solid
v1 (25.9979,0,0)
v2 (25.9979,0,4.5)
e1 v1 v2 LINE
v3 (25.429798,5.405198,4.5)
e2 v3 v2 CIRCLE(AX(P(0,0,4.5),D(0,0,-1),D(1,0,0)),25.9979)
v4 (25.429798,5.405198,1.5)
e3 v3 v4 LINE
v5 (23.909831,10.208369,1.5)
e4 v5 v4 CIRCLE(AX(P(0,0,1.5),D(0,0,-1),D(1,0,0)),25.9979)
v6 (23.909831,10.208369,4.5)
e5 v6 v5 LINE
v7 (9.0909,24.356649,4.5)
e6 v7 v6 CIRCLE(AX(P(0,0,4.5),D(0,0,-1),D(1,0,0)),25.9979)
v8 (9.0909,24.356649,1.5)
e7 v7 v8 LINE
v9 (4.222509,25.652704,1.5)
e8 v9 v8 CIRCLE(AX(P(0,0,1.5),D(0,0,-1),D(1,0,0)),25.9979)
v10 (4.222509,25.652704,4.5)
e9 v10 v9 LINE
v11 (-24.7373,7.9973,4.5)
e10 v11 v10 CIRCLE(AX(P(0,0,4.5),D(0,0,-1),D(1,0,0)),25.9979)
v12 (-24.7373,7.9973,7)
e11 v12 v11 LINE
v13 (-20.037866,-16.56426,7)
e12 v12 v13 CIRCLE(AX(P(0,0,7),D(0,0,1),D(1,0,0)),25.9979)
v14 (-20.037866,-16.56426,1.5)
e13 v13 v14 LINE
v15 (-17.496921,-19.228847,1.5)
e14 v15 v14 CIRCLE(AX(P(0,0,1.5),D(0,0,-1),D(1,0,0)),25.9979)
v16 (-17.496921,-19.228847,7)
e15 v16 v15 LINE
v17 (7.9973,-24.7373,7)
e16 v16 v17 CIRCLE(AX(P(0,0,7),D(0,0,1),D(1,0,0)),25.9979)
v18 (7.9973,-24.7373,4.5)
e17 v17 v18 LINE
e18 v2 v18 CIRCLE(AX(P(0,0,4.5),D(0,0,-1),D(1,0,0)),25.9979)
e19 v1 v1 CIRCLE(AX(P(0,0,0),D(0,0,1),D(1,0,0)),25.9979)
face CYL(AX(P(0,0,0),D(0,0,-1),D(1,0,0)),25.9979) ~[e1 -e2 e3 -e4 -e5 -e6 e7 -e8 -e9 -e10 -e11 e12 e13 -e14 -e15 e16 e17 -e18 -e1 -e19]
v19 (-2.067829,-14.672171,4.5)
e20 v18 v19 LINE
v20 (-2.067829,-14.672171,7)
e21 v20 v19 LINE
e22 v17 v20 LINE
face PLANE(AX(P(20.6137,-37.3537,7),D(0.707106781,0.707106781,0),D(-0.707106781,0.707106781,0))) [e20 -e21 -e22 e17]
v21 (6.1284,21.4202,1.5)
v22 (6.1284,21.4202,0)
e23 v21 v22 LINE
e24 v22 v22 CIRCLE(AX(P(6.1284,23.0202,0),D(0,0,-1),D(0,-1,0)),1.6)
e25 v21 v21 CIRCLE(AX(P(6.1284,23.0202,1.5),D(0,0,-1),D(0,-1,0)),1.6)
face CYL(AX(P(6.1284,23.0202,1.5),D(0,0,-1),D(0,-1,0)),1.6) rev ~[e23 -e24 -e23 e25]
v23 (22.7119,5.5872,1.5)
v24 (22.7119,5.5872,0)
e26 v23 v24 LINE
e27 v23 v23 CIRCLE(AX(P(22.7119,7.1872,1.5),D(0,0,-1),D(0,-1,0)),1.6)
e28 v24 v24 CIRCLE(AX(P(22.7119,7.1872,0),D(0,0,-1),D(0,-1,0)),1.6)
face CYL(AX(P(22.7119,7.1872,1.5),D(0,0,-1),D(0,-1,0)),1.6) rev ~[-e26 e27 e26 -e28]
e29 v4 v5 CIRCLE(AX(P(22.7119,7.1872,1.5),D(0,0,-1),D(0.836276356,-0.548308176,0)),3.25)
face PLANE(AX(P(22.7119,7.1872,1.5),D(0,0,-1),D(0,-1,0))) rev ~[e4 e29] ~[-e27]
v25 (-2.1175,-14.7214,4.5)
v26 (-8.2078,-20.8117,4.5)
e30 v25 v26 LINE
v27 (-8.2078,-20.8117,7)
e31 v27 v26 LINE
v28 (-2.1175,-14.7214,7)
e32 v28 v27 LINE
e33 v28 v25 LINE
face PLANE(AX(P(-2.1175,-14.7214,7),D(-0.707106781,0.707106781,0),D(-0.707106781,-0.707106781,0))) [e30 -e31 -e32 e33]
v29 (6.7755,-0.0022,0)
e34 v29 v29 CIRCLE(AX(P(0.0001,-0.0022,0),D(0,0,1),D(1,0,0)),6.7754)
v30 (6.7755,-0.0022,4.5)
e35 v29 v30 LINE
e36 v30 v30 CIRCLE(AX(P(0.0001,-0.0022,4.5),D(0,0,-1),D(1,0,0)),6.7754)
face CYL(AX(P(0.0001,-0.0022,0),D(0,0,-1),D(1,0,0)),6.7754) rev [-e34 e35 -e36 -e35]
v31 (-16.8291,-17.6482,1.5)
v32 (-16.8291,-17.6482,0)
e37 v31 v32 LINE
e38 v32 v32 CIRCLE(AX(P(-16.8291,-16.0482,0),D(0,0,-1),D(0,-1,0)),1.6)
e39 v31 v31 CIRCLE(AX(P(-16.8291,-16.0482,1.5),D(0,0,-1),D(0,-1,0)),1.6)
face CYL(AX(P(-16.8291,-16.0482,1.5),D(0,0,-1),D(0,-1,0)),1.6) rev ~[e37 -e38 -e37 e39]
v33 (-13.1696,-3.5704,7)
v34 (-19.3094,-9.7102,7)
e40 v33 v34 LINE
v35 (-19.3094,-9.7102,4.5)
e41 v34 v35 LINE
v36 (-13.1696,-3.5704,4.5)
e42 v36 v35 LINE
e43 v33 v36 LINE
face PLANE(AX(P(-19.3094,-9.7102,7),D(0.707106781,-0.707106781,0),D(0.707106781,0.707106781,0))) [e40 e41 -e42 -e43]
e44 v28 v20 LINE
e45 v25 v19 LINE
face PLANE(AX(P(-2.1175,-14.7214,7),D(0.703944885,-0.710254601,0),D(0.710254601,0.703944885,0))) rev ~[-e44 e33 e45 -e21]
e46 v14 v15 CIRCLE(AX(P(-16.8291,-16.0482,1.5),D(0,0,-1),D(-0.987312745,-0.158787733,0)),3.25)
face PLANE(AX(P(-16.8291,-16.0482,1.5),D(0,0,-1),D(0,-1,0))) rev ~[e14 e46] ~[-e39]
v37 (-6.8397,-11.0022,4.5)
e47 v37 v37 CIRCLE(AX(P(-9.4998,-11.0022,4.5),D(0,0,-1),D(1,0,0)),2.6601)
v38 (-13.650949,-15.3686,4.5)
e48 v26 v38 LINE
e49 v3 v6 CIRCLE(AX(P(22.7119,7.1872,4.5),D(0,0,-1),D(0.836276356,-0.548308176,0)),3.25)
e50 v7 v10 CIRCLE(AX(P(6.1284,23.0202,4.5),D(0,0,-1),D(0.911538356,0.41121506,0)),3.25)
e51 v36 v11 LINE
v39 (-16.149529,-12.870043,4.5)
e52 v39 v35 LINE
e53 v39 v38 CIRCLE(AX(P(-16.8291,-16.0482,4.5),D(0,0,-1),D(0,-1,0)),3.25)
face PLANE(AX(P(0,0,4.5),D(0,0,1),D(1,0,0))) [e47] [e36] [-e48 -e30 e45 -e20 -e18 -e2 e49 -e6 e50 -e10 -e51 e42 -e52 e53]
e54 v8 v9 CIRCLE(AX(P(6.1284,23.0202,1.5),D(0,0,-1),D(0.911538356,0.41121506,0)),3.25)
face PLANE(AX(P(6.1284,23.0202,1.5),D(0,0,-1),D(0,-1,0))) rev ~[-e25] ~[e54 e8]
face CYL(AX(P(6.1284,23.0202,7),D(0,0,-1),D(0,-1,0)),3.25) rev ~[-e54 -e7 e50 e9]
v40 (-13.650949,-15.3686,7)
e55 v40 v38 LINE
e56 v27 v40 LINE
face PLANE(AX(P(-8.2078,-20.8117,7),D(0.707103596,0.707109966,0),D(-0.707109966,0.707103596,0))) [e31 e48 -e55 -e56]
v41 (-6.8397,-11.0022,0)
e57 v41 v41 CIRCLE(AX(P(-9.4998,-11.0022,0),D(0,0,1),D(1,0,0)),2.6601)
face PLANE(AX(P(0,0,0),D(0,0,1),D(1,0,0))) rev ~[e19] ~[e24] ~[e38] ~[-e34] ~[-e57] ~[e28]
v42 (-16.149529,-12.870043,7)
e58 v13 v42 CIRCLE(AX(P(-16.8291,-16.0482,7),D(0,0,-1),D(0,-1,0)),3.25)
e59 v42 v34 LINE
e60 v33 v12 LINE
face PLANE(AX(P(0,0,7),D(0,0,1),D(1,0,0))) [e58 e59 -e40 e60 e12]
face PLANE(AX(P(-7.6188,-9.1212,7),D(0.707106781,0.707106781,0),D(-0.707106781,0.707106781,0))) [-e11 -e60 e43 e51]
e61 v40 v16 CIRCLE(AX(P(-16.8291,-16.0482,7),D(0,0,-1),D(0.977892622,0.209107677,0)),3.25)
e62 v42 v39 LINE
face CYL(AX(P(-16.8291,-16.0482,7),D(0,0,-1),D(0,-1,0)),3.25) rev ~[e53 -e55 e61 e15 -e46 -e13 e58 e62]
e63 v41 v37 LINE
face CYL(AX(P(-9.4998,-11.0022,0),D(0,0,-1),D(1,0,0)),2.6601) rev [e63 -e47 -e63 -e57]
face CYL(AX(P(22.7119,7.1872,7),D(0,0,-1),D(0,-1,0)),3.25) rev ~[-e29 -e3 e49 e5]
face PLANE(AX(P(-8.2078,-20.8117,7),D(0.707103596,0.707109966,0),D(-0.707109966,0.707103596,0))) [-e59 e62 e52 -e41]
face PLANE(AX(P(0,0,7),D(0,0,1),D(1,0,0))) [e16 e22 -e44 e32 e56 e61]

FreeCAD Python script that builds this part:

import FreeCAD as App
import Part
import Sketcher
from FreeCAD import Vector
Q = App.Units.Quantity


def add_polygon(sketch, points):
    """Adds a closed chain of lines whose ends are joined by coincident constraints."""
    first, n = sketch.GeometryCount, len(points)
    for a, b in zip(points, points[1:] + points[:1]):
        sketch.addGeometry(Part.LineSegment(App.Vector(*a, 0), App.Vector(*b, 0)), False)
    for i in range(n):
        sketch.addConstraint(Sketcher.Constraint("Coincident", first + i, 2, first + (i + 1) % n, 1))

doc = App.newDocument("Part")
body = doc.addObject("PartDesign::Body", "Body")

sketch1 = body.newObject("Sketcher::SketchObject", "Sketch")
sketch1.AttachmentSupport = (doc.getObject("XY_Plane"), [""])
sketch1.MapMode = "FlatFace"
sketch1.addGeometry([
    Part.Circle(Vector(0, 0, 0), Vector(0, 0, 1), 25.9979),
    Part.Circle(Vector(-9.4998, -11.0022, 0), Vector(0, 0, 1), 2.6601),
    Part.Circle(Vector(0.0001, -0.0022, 0), Vector(0, 0, 1), 6.7754),
], False)
sketch1.addConstraint([
    Sketcher.Constraint("Coincident", 0, 3, -1, 1),
    Sketcher.Constraint("PointOnObject", 2, 3, -2),
    Sketcher.Constraint("DistanceY", 1, 3, 2, 3, 11.0),
    Sketcher.Constraint("Diameter", 0, 51.9958),
    Sketcher.Constraint("Diameter", 1, 5.3202),
    Sketcher.Constraint("Diameter", 2, 13.5508),
    Sketcher.Constraint("DistanceX", 1, 3, 2, 3, 9.5),
    Sketcher.Constraint("DistanceY", 1, 3, -1, 1, 11.0022),
])
pad1 = body.newObject("PartDesign::Pad", "Pad")
pad1.Profile = sketch1
pad1.Length = 7

sketch2 = body.newObject("Sketcher::SketchObject", "Sketch001")
sketch2.AttachmentSupport = (doc.getObject("XY_Plane"), [""])
sketch2.MapMode = "FlatFace"
sketch2.AttachmentOffset = App.Placement(Vector(0, 0, 7), App.Rotation())
add_polygon(sketch2, [(48.898, -9.0695), (-10.4551, 50.2837), (-38.7394, 21.9994), (20.6137, -37.3537)])
sketch2.addConstraint([
    Sketcher.Constraint("Perpendicular", 0, 1),
    Sketcher.Constraint("Perpendicular", 1, 2),
    Sketcher.Constraint("Perpendicular", 2, 3),
    Sketcher.Constraint("Angle", 0, Q("135 deg")),
    Sketcher.Constraint("Distance", 1, 40.0),
    Sketcher.Constraint("Distance", 0, 83.938),
    Sketcher.Constraint("DistanceX", 0, 2, -1, 1, 10.455),
    Sketcher.Constraint("DistanceY", -1, 1, 0, 2, 50.2837),
])
pocket1 = body.newObject("PartDesign::Pocket", "Pocket")
pocket1.Profile = sketch2
pocket1.Length = 2.5

sketch3 = body.newObject("Sketcher::SketchObject", "Sketch002")
sketch3.AttachmentSupport = (doc.getObject("XY_Plane"), [""])
sketch3.MapMode = "FlatFace"
sketch3.AttachmentOffset = App.Placement(Vector(0, 0, 7), App.Rotation())
add_polygon(sketch3, [(-8.2078, -20.8117), (-2.1175, -14.7214), (-0.0463, -12.6686), (-11.0984, -1.5176), (-13.1696, -3.5704), (-19.3094, -9.7102)])
sketch3.addConstraint([
    Sketcher.Constraint("Distance", 2, 15.7),
    Sketcher.Constraint("Distance", 5, 15.7),
    Sketcher.Constraint("Distance", 0, 8.613),
    Sketcher.Constraint("Distance", 4, 8.683),
    Sketcher.Constraint("DistanceX", 2, 2, 1, 2, 11.052),
    Sketcher.Constraint("DistanceX", 2, 2, 0, 2, 8.981),
    Sketcher.Constraint("DistanceX", 3, 2, 0, 2, 11.052),
    Sketcher.Constraint("DistanceY", 0, 2, 3, 2, 11.151),
    Sketcher.Constraint("DistanceX", 4, 2, 2, 2, 8.211),
    Sketcher.Constraint("DistanceY", 5, 2, 1, 2, 8.143),
    Sketcher.Constraint("DistanceX", 0, 2, -1, 1, 2.1175),
    Sketcher.Constraint("DistanceY", 0, 2, -1, 1, 14.7214),
])
pocket2 = body.newObject("PartDesign::Pocket", "Pocket001")
pocket2.Profile = sketch3
pocket2.Length = 2.5

sketch4 = body.newObject("Sketcher::SketchObject", "Sketch003")
sketch4.AttachmentSupport = (doc.getObject("XY_Plane"), [""])
sketch4.MapMode = "FlatFace"
sketch4.AttachmentOffset = App.Placement(Vector(0, 0, 7), App.Rotation())
sketch4.addGeometry([
    Part.Circle(Vector(6.1284, 23.0202, 0), Vector(0, 0, 1), 1.6),
    Part.Circle(Vector(22.7119, 7.1872, 0), Vector(0, 0, 1), 1.6),
    Part.Circle(Vector(-16.8291, -16.0482, 0), Vector(0, 0, 1), 1.6),
], False)
sketch4.addConstraint([
    Sketcher.Constraint("Equal", 0, 1),
    Sketcher.Constraint("Equal", 1, 2),
    Sketcher.Constraint("Diameter", 0, 3.2),
    Sketcher.Constraint("DistanceX", -1, 1, 1, 3, 22.712),
    Sketcher.Constraint("DistanceX", 2, 3, -1, 1, 16.829),
    Sketcher.Constraint("DistanceY", 1, 3, 0, 3, 15.833),
    Sketcher.Constraint("DistanceX", -1, 1, 0, 3, 6.1284),
    Sketcher.Constraint("DistanceY", -1, 1, 0, 3, 23.0202),
    Sketcher.Constraint("DistanceY", 2, 3, -1, 1, 16.0482),
])
doc.recompute()
hole = body.newObject("PartDesign::Hole", "Hole")
hole.Profile = sketch4
hole.ThreadType = "None"
hole.Diameter = 3.2
hole.DepthType = "ThroughAll"
hole.HoleCutType = "Counterbore"
hole.HoleCutDiameter = 6.5
hole.HoleCutDepth = 5.5

doc.recompute()
